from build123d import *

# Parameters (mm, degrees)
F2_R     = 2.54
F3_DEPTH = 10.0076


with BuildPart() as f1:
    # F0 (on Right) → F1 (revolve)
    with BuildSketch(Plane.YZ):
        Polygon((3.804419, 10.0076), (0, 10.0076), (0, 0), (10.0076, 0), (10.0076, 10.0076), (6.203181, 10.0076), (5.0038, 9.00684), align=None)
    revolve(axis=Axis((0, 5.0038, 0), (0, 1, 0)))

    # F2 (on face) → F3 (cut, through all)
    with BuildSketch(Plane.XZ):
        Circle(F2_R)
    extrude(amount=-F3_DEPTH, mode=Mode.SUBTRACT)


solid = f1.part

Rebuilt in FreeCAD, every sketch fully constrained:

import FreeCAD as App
import Part
import Sketcher
from FreeCAD import Vector
Q = App.Units.Quantity

doc = App.newDocument("Part")
body = doc.addObject("PartDesign::Body", "Body")

# Sketch on YZ plane
sketch1 = body.newObject("Sketcher::SketchObject", "Sketch")
sketch1.AttachmentSupport = (doc.getObject("YZ_Plane"), [""])
sketch1.MapMode = "FlatFace"
sketch1.addGeometry(Part.LineSegment(Vector(3.804419, 10.0076, 0), Vector(0, 10.0076, 0)), False)
sketch1.addGeometry(Part.LineSegment(Vector(0, 10.0076, 0), Vector(0, 0, 0)), False)
sketch1.addGeometry(Part.LineSegment(Vector(0, 0, 0), Vector(10.0076, 0, 0)), False)
sketch1.addGeometry(Part.LineSegment(Vector(10.0076, 0, 0), Vector(10.0076, 10.0076, 0)), False)
sketch1.addGeometry(Part.LineSegment(Vector(10.0076, 10.0076, 0), Vector(6.203181, 10.0076, 0)), False)
sketch1.addGeometry(Part.LineSegment(Vector(6.203181, 10.0076, 0), Vector(5.0038, 9.00684, 0)), False)
sketch1.addGeometry(Part.LineSegment(Vector(5.0038, 9.00684, 0), Vector(3.804419, 10.0076, 0)), False)
sketch1.addConstraint(Sketcher.Constraint("Coincident", 0, 2, 1, 1))
sketch1.addConstraint(Sketcher.Constraint("Coincident", 1, 2, 2, 1))
sketch1.addConstraint(Sketcher.Constraint("Coincident", 2, 2, 3, 1))
sketch1.addConstraint(Sketcher.Constraint("Coincident", 3, 2, 4, 1))
sketch1.addConstraint(Sketcher.Constraint("Coincident", 4, 2, 5, 1))
sketch1.addConstraint(Sketcher.Constraint("Coincident", 5, 2, 6, 1))
sketch1.addConstraint(Sketcher.Constraint("Coincident", 6, 2, 0, 1))
sketch1.addConstraint(Sketcher.Constraint("Horizontal", 0))
sketch1.addConstraint(Sketcher.Constraint("Vertical", 1))
sketch1.addConstraint(Sketcher.Constraint("Horizontal", 2))
sketch1.addConstraint(Sketcher.Constraint("Vertical", 3))
sketch1.addConstraint(Sketcher.Constraint("Horizontal", 4))
sketch1.addConstraint(Sketcher.Constraint("Coincident", 1, 2, -1, 1))
sketch1.addConstraint(Sketcher.Constraint("Horizontal", 0, 2, 3, 2))
sketch1.addConstraint(Sketcher.Constraint("Equal", 0, 4))
sketch1.addConstraint(Sketcher.Constraint("Equal", 2, 1))
sketch1.addConstraint(Sketcher.Constraint("Equal", 5, 6))
sketch1.addConstraint(Sketcher.Constraint("DistanceX", 2, 1, 2, 2, Q("0.394 in")))
sketch1.addConstraint(Sketcher.Constraint("DistanceY", -1, 1, 5, 2, Q("0.3546 in")))
sketch1.addConstraint(Sketcher.Constraint("DistanceX", 0, 2, 0, 1, 3.804419))
revolution = body.newObject("PartDesign::Revolution", "Revolution")
revolution.Profile = sketch1
revolution.ReferenceAxis = (sketch1, ["H_Axis"])
revolution.Angle = 360

# Sketch on XZ plane
sketch2 = body.newObject("Sketcher::SketchObject", "Sketch001")
sketch2.AttachmentSupport = (doc.getObject("XZ_Plane"), [""])
sketch2.MapMode = "FlatFace"
sketch2.addGeometry(Part.Circle(Vector(0, 0, 0), Vector(0, 0, 1), 2.54), False)
sketch2.addConstraint(Sketcher.Constraint("Coincident", 0, 3, -1, 1))
sketch2.addConstraint(Sketcher.Constraint("Diameter", 0, Q("0.2 in")))
pocket1 = body.newObject("PartDesign::Pocket", "Pocket")
pocket1.Profile = sketch2
pocket1.Type = "ThroughAll"

doc.recompute()
